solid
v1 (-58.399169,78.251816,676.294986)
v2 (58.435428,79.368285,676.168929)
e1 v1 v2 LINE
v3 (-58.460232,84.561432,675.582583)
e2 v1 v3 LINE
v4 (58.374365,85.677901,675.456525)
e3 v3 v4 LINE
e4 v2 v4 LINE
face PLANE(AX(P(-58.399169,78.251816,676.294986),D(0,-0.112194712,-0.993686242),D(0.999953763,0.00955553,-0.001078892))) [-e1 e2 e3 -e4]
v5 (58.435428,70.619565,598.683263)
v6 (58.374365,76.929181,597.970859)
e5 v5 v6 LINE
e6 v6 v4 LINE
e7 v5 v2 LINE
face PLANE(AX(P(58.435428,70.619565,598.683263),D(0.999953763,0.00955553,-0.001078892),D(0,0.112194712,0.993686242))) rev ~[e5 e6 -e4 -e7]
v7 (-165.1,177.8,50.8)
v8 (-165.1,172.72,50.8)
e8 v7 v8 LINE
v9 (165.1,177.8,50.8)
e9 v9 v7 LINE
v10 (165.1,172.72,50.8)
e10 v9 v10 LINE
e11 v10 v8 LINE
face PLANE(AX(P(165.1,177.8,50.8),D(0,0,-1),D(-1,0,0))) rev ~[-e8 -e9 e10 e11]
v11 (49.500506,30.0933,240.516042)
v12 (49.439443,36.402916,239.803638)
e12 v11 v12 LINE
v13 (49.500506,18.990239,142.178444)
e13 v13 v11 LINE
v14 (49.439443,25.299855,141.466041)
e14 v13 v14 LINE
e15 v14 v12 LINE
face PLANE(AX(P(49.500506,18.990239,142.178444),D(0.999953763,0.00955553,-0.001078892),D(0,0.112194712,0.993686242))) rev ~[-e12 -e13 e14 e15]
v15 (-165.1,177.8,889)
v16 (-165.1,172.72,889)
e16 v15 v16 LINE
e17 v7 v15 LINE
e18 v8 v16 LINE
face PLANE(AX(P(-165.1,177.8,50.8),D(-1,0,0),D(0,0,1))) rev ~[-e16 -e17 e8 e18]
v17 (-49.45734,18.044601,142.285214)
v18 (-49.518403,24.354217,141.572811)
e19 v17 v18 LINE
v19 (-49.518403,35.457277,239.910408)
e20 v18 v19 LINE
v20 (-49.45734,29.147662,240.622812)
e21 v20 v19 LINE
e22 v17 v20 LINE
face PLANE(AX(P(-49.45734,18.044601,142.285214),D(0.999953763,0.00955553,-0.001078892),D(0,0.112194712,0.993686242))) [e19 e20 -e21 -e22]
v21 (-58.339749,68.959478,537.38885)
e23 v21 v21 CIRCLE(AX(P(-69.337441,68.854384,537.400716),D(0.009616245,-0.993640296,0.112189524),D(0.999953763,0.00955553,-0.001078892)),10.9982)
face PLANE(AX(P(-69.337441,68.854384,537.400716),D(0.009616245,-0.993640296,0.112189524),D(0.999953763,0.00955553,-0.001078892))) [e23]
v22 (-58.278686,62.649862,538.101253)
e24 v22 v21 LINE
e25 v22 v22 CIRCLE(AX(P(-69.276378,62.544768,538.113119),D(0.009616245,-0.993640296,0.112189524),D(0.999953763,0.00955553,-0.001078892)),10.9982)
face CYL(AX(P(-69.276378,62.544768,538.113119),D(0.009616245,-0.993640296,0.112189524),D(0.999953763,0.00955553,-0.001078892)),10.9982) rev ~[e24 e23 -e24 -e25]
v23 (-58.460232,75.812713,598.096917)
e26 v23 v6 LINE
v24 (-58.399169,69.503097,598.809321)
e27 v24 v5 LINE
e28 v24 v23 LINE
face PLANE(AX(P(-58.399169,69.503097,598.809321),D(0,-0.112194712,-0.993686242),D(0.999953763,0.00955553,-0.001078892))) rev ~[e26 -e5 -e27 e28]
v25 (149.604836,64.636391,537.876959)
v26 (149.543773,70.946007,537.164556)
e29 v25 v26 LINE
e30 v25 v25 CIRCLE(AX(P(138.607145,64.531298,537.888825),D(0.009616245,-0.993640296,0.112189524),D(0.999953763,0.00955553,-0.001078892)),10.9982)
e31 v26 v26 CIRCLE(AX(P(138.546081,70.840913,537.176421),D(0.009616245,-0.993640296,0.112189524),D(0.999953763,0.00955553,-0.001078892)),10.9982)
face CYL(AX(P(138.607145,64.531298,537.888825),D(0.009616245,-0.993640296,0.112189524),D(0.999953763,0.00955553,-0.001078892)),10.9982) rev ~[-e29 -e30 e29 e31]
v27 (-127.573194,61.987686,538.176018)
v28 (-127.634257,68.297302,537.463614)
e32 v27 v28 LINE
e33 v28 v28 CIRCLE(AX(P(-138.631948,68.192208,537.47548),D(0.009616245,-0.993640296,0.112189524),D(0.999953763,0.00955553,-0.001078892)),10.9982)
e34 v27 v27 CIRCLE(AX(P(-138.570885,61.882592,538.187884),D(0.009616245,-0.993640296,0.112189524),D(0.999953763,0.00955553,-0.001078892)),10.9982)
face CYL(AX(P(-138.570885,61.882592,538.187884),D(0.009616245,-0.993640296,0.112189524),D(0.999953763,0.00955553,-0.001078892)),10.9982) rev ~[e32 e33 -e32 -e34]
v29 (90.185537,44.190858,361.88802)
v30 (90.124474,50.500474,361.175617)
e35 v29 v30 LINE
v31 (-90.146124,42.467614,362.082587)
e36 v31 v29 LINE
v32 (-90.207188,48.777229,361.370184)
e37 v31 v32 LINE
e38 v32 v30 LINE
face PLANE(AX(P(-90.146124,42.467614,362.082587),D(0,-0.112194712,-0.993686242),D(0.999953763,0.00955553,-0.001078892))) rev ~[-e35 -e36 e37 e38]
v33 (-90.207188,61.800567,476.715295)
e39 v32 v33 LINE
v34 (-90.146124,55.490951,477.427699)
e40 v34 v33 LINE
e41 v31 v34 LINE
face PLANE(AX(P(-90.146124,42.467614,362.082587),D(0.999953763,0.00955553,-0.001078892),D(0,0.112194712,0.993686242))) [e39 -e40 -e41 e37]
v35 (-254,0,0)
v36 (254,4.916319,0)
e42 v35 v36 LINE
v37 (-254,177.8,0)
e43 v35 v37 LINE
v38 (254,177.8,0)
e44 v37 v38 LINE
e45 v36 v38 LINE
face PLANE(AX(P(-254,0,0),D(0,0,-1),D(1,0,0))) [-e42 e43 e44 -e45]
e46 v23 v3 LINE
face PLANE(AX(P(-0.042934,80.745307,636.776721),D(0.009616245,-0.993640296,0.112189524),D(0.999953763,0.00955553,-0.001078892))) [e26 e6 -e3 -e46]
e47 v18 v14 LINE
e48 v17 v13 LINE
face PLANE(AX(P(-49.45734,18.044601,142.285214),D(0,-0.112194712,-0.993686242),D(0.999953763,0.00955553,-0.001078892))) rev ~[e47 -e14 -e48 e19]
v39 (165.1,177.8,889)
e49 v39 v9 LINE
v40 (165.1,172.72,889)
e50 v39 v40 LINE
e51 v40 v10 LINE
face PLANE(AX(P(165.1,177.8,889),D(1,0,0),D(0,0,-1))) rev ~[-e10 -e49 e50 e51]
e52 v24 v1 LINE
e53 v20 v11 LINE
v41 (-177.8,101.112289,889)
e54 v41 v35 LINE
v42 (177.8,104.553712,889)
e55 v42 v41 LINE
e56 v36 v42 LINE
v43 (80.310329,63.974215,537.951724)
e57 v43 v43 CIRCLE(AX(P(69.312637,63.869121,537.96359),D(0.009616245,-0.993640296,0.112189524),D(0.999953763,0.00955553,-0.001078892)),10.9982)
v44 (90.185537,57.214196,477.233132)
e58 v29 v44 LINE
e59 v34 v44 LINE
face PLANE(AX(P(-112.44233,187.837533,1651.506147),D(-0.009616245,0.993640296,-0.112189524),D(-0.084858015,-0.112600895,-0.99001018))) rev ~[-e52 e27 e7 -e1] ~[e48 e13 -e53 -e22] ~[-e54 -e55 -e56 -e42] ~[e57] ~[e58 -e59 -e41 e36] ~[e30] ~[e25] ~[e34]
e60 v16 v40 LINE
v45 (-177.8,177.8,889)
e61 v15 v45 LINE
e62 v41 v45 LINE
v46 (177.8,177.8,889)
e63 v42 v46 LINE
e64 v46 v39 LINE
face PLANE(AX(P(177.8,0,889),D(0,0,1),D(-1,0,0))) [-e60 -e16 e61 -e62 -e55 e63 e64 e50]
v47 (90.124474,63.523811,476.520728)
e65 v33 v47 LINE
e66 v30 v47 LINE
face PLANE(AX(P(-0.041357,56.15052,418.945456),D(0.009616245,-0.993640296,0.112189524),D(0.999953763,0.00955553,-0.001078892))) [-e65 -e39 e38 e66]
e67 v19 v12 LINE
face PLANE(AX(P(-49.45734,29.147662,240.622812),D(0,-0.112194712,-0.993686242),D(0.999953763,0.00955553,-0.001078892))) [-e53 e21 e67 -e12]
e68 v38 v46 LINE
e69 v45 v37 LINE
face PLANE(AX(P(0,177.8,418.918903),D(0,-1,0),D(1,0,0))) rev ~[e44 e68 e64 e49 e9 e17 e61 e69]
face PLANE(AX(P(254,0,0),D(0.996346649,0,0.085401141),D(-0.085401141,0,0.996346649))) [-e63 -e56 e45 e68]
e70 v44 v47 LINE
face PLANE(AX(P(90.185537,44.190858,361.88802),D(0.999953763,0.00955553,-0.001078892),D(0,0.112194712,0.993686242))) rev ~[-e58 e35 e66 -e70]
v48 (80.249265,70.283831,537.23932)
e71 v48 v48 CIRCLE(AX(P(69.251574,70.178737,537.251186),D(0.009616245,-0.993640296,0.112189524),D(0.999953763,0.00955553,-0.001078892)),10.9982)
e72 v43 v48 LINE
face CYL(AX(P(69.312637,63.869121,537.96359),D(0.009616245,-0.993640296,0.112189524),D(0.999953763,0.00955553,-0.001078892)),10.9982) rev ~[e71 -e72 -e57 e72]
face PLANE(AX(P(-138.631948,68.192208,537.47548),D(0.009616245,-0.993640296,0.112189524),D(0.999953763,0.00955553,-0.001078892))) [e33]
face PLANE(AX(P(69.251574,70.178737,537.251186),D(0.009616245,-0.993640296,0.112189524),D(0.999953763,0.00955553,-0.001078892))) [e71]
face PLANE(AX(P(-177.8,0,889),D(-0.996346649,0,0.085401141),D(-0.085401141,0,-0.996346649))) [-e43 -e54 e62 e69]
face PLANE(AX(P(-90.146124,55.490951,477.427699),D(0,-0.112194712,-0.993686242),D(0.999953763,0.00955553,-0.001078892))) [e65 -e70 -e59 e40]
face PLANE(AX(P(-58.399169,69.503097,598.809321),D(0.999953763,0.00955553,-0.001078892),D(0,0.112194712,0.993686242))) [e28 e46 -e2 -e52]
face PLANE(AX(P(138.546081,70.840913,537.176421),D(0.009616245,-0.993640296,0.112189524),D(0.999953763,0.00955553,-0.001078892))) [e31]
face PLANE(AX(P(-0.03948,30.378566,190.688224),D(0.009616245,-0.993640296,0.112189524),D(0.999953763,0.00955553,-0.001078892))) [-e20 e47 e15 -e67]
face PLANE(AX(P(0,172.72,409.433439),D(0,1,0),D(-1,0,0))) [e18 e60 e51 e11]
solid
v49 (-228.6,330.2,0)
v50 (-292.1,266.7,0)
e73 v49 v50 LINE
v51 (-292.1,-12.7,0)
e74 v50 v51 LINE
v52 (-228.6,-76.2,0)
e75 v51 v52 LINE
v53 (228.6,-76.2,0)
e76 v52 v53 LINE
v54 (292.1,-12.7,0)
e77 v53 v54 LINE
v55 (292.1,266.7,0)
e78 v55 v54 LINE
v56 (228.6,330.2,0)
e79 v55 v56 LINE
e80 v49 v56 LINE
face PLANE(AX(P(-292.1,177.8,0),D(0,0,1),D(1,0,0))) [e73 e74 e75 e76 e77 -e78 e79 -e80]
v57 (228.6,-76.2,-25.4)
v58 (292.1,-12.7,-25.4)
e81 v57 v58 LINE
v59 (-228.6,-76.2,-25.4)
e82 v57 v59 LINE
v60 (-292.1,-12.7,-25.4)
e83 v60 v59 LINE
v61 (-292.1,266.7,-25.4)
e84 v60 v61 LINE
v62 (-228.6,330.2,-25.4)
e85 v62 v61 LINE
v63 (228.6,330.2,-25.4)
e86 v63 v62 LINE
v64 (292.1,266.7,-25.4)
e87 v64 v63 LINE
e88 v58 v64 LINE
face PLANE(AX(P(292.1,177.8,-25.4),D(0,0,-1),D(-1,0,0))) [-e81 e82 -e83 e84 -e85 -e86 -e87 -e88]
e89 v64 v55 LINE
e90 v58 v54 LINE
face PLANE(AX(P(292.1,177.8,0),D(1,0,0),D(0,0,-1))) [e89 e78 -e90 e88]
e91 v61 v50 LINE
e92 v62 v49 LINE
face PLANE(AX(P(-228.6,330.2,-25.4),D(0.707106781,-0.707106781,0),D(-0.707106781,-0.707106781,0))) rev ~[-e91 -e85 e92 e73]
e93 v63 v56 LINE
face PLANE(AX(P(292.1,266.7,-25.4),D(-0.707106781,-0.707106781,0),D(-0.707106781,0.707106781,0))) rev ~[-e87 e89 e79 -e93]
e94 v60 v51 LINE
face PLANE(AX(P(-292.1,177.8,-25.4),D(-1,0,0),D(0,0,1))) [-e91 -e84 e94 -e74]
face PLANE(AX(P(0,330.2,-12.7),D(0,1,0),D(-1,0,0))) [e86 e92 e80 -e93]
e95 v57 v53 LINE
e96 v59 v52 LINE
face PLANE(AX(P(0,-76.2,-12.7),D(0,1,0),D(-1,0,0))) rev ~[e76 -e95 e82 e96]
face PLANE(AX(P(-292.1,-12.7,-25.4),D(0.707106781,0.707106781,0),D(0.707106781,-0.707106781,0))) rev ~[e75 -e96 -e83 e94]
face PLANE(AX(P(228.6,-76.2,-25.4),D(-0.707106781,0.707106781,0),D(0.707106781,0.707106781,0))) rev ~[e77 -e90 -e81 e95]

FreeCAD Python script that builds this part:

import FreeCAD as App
import Part
import Sketcher

V = App.Vector
Q = App.Units.Quantity

doc = App.newDocument("Part")
body = doc.addObject("PartDesign::Body", "Body")

# Sketch on XZ plane
sketch1 = doc.addObject("Sketcher::SketchObject", "Sketch")
body.addObject(sketch1)
sketch1.AttachmentSupport = (doc.XZ_Plane, [""])
sketch1.MapMode = "FlatFace"
sketch1.addGeometry(Part.LineSegment(V(-178, 889, 0), V(-254, 0, 0)), False)
sketch1.addGeometry(Part.LineSegment(V(-254, 0, 0), V(254, 0, 0)), False)
sketch1.addGeometry(Part.LineSegment(V(254, 0, 0), V(178, 889, 0)), False)
sketch1.addGeometry(Part.LineSegment(V(178, 889, 0), V(-178, 889, 0)), False)
sketch1.addConstraint(Sketcher.Constraint("Coincident", 0, 2, 1, 1))
sketch1.addConstraint(Sketcher.Constraint("Coincident", 1, 2, 2, 1))
sketch1.addConstraint(Sketcher.Constraint("Coincident", 2, 2, 3, 1))
sketch1.addConstraint(Sketcher.Constraint("Coincident", 3, 2, 0, 1))
sketch1.addConstraint(Sketcher.Constraint("Horizontal", 1))
sketch1.addConstraint(Sketcher.Constraint("Horizontal", 3))
sketch1.addConstraint(Sketcher.Constraint("Symmetric", 0, 2, 1, 2, -1, 1))
sketch1.addConstraint(Sketcher.Constraint("Equal", 0, 2))
sketch1.addConstraint(Sketcher.Constraint("DistanceX", 1, 1, 1, 2, Q("20 in")))
sketch1.addConstraint(Sketcher.Constraint("DistanceX", 3, 2, 3, 1, Q("14 in")))
sketch1.addConstraint(Sketcher.Constraint("DistanceY", -1, 1, 2, 2, Q("35 in")))
pad1 = doc.addObject("PartDesign::Pad", "Pad")
body.addObject(pad1)
pad1.Profile = sketch1
pad1.Length = Q("7 in")
pad1.Reversed = True

# Sketch on an angled plane
sketch2 = doc.addObject("Sketcher::SketchObject", "Sketch001")
body.addObject(sketch2)
sketch2.Placement = App.Placement(V(-252.147488, 0, 21.612642), App.Rotation(V(0, -1, 0), V(0.085401141, 0, 0.996346649), V(-0.996346649, 0, 0.085401141), "ZXY"))
sketch2.addGeometry(Part.LineSegment(V(0, -22, 0), V(0, 1636, 0)), False)
sketch2.addGeometry(Part.LineSegment(V(0, 1636, 0), V(-188, 1636, 0)), False)
sketch2.addGeometry(Part.LineSegment(V(-188, 1636, 0), V(0, -22, 0)), False)
sketch2.addConstraint(Sketcher.Constraint("Coincident", 0, 2, 1, 1))
sketch2.addConstraint(Sketcher.Constraint("Coincident", 1, 2, 2, 1))
sketch2.addConstraint(Sketcher.Constraint("Coincident", 2, 2, 0, 1))
sketch2.addConstraint(Sketcher.Constraint("Vertical", 0))
sketch2.addConstraint(Sketcher.Constraint("Horizontal", 1))
sketch2.addConstraint(Sketcher.Constraint("PointOnObject", 0, 2, -2))
sketch2.addConstraint(Sketcher.Constraint("DistanceX", 1, 2, 1, 1, 187.837533))
sketch2.addConstraint(Sketcher.Constraint("DistanceY", 0, 1, 0, 2, 1657.561802))
sketch2.addConstraint(Sketcher.Constraint("DistanceY", 2, 2, -1, 1, 21.69189))
pocket1 = doc.addObject("PartDesign::Pocket", "Pocket")
body.addObject(pocket1)
pocket1.Profile = sketch2
pocket1.Type = "ThroughAll"

# Sketch on XZ plane
sketch3 = doc.addObject("Sketcher::SketchObject", "Sketch002")
body.addObject(sketch3)
sketch3.AttachmentSupport = (doc.XZ_Plane, [""])
sketch3.MapMode = "FlatFace"
sketch3.AttachmentOffset = App.Placement(V(0, 0, -7 * 25.4), App.Rotation())
sketch3.addGeometry(Part.LineSegment(V(165, 889, 0), V(165, 51, 0)), False)
sketch3.addGeometry(Part.LineSegment(V(165, 51, 0), V(-165, 51, 0)), False)
sketch3.addGeometry(Part.LineSegment(V(-165, 51, 0), V(-165, 889, 0)), False)
sketch3.addGeometry(Part.LineSegment(V(-165, 889, 0), V(165, 889, 0)), False)
sketch3.addConstraint(Sketcher.Constraint("Coincident", 0, 2, 1, 1))
sketch3.addConstraint(Sketcher.Constraint("Coincident", 1, 2, 2, 1))
sketch3.addConstraint(Sketcher.Constraint("Coincident", 2, 2, 3, 1))
sketch3.addConstraint(Sketcher.Constraint("Coincident", 3, 2, 0, 1))
sketch3.addConstraint(Sketcher.Constraint("Vertical", 0))
sketch3.addConstraint(Sketcher.Constraint("Horizontal", 1))
sketch3.addConstraint(Sketcher.Constraint("Vertical", 2))
sketch3.addConstraint(Sketcher.Constraint("Horizontal", 3))
sketch3.addConstraint(Sketcher.Constraint("DistanceX", 1, 2, 1, 1, Q("13 in")))
sketch3.addConstraint(Sketcher.Constraint("DistanceY", 0, 2, 0, 1, Q("33 in")))
sketch3.addConstraint(Sketcher.Constraint("DistanceY", -1, 1, 0, 2, Q("2 in")))
sketch3.addConstraint(Sketcher.Constraint("DistanceX", -1, 1, 0, 2, Q("6.5 in")))
pocket2 = doc.addObject("PartDesign::Pocket", "Pocket001")
body.addObject(pocket2)
pocket2.Profile = sketch3
pocket2.Length = Q("0.2 in")
pocket2.Reversed = True

# Sketch on an angled plane
sketch4 = doc.addObject("Sketcher::SketchObject", "Sketch003")
body.addObject(sketch4)
sketch4.Placement = App.Placement(V(-0.023488, 2.426992, -0.274026), App.Rotation(V(0.999953763, 0.00955553, -0.001078892), V(0, 0.112194712, 0.993686241), V(0.009616245, -0.993640296, 0.112189524), "ZXY"))
sketch4.addGeometry(Part.LineSegment(V(-58, 681, 0), V(-58, 603, 0)), False)
sketch4.addGeometry(Part.LineSegment(V(-58, 603, 0), V(58, 603, 0)), False)
sketch4.addGeometry(Part.LineSegment(V(58, 603, 0), V(58, 681, 0)), False)
sketch4.addGeometry(Part.LineSegment(V(58, 681, 0), V(-58, 681, 0)), False)
sketch4.addGeometry(Part.LineSegment(V(-90, 481, 0), V(-90, 365, 0)), False)
sketch4.addGeometry(Part.LineSegment(V(-90, 365, 0), V(90, 365, 0)), False)
sketch4.addGeometry(Part.LineSegment(V(90, 365, 0), V(90, 481, 0)), False)
sketch4.addGeometry(Part.LineSegment(V(90, 481, 0), V(-90, 481, 0)), False)
sketch4.addGeometry(Part.LineSegment(V(-49, 242, 0), V(-49, 143, 0)), False)
sketch4.addGeometry(Part.LineSegment(V(-49, 143, 0), V(50, 143, 0)), False)
sketch4.addGeometry(Part.LineSegment(V(50, 143, 0), V(50, 242, 0)), False)
sketch4.addGeometry(Part.LineSegment(V(50, 242, 0), V(-49, 242, 0)), False)
sketch4.addGeometry(Part.Circle(V(69, 542, 0), V(0, 0, 1), 11), False)
sketch4.addGeometry(Part.Circle(V(139, 542, 0), V(0, 0, 1), 11), False)
sketch4.addGeometry(Part.Circle(V(-139, 542, 0), V(0, 0, 1), 11), False)
sketch4.addGeometry(Part.Circle(V(-69, 542, 0), V(0, 0, 1), 11), False)
sketch4.addConstraint(Sketcher.Constraint("Coincident", 0, 2, 1, 1))
sketch4.addConstraint(Sketcher.Constraint("Coincident", 1, 2, 2, 1))
sketch4.addConstraint(Sketcher.Constraint("Coincident", 2, 2, 3, 1))
sketch4.addConstraint(Sketcher.Constraint("Coincident", 3, 2, 0, 1))
sketch4.addConstraint(Sketcher.Constraint("Coincident", 4, 2, 5, 1))
sketch4.addConstraint(Sketcher.Constraint("Coincident", 5, 2, 6, 1))
sketch4.addConstraint(Sketcher.Constraint("Coincident", 6, 2, 7, 1))
sketch4.addConstraint(Sketcher.Constraint("Coincident", 7, 2, 4, 1))
sketch4.addConstraint(Sketcher.Constraint("Coincident", 8, 2, 9, 1))
sketch4.addConstraint(Sketcher.Constraint("Coincident", 9, 2, 10, 1))
sketch4.addConstraint(Sketcher.Constraint("Coincident", 10, 2, 11, 1))
sketch4.addConstraint(Sketcher.Constraint("Coincident", 11, 2, 8, 1))
sketch4.addConstraint(Sketcher.Constraint("Vertical", 0))
sketch4.addConstraint(Sketcher.Constraint("Horizontal", 1))
sketch4.addConstraint(Sketcher.Constraint("Vertical", 2))
sketch4.addConstraint(Sketcher.Constraint("Horizontal", 3))
sketch4.addConstraint(Sketcher.Constraint("Vertical", 4))
sketch4.addConstraint(Sketcher.Constraint("Horizontal", 5))
sketch4.addConstraint(Sketcher.Constraint("Vertical", 6))
sketch4.addConstraint(Sketcher.Constraint("Horizontal", 7))
sketch4.addConstraint(Sketcher.Constraint("Vertical", 8))
sketch4.addConstraint(Sketcher.Constraint("Horizontal", 9))
sketch4.addConstraint(Sketcher.Constraint("Vertical", 10))
sketch4.addConstraint(Sketcher.Constraint("Horizontal", 11))
sketch4.addConstraint(Sketcher.Constraint("Equal", 12, 13))
sketch4.addConstraint(Sketcher.Constraint("Equal", 13, 14))
sketch4.addConstraint(Sketcher.Constraint("Equal", 14, 15))
sketch4.addConstraint(Sketcher.Constraint("Horizontal", 12, 3, 13, 3))
sketch4.addConstraint(Sketcher.Constraint("Horizontal", 13, 3, 14, 3))
sketch4.addConstraint(Sketcher.Constraint("Horizontal", 14, 3, 15, 3))
sketch4.addConstraint(Sketcher.Constraint("Equal", 11, 8))
sketch4.addConstraint(Sketcher.Constraint("Diameter", 12, Q("0.866 in")))
sketch4.addConstraint(Sketcher.Constraint("DistanceX", 1, 1, 1, 2, Q("4.6 in")))
sketch4.addConstraint(Sketcher.Constraint("DistanceX", 5, 1, 5, 2, Q("7.1 in")))
sketch4.addConstraint(Sketcher.Constraint("DistanceY", 0, 2, 0, 1, Q("3.07 in")))
sketch4.addConstraint(Sketcher.Constraint("DistanceY", 4, 2, 4, 1, Q("4.57 in")))
sketch4.addConstraint(Sketcher.Constraint("DistanceX", 14, 3, 4, 2, 48.427))
sketch4.addConstraint(Sketcher.Constraint("DistanceX", 9, 1, 9, 2, 98.962422))
sketch4.addConstraint(Sketcher.Constraint("DistanceX", -1, 1, 12, 3, 69.339331))
sketch4.addConstraint(Sketcher.Constraint("DistanceX", 0, 2, -1, 1, 58.37838))
sketch4.addConstraint(Sketcher.Constraint("DistanceX", 8, 2, -1, 1, 49.436138))
sketch4.addConstraint(Sketcher.Constraint("DistanceY", -1, 1, 8, 2, 143.411368))
sketch4.addConstraint(Sketcher.Constraint("DistanceX", 12, 3, 13, 3, 69.297712))
sketch4.addConstraint(Sketcher.Constraint("DistanceX", 14, 3, 15, 3, 69.297712))
sketch4.addConstraint(Sketcher.Constraint("DistanceX", 15, 3, 0, 2, 10.877712))
sketch4.addConstraint(Sketcher.Constraint("DistanceY", 15, 3, 0, 2, 61.093668))
sketch4.addConstraint(Sketcher.Constraint("DistanceY", 4, 2, 15, 3, 177.171668))
sketch4.addConstraint(Sketcher.Constraint("DistanceY", 8, 2, 4, 2, 221.149759))
pocket3 = doc.addObject("PartDesign::Pocket", "Pocket002")
body.addObject(pocket3)
pocket3.Profile = sketch4
pocket3.Length = Q("0.25 in")
body2 = doc.addObject("PartDesign::Body", "Body001")

# Sketch on XZ plane
sketch5 = doc.addObject("Sketcher::SketchObject", "Sketch004")
body2.addObject(sketch5)
sketch5.AttachmentSupport = (doc.getObject("XZ_Plane001"), [""])
sketch5.MapMode = "FlatFace"
sketch5.AttachmentOffset = App.Placement(V(0, 0, -7 * 25.4), App.Rotation())
sketch5.addGeometry(Part.LineSegment(V(292, 0, 0), V(292, -25, 0)), False)
sketch5.addGeometry(Part.LineSegment(V(292, -25, 0), V(-292, -25, 0)), False)
sketch5.addGeometry(Part.LineSegment(V(-292, -25, 0), V(-292, 0, 0)), False)
sketch5.addGeometry(Part.LineSegment(V(-292, 0, 0), V(292, 0, 0)), False)
sketch5.addConstraint(Sketcher.Constraint("Coincident", 0, 2, 1, 1))
sketch5.addConstraint(Sketcher.Constraint("Coincident", 1, 2, 2, 1))
sketch5.addConstraint(Sketcher.Constraint("Coincident", 2, 2, 3, 1))
sketch5.addConstraint(Sketcher.Constraint("Coincident", 3, 2, 0, 1))
sketch5.addConstraint(Sketcher.Constraint("Vertical", 0))
sketch5.addConstraint(Sketcher.Constraint("Horizontal", 1))
sketch5.addConstraint(Sketcher.Constraint("Vertical", 2))
sketch5.addConstraint(Sketcher.Constraint("Horizontal", 3))
sketch5.addConstraint(Sketcher.Constraint("Symmetric", 2, 2, 3, 2, -1, 1))
sketch5.addConstraint(Sketcher.Constraint("DistanceX", 1, 2, 1, 1, Q("23 in")))
sketch5.addConstraint(Sketcher.Constraint("DistanceY", 0, 2, 0, 1, Q("1 in")))
pad2 = doc.addObject("PartDesign::Pad", "Pad001")
body2.addObject(pad2)
pad2.Profile = sketch5
pad2.Type = "TwoLengths"
pad2.Length = Q("6 in")
pad2.Length2 = Q("10 in")
pad2.Reversed = True

# Sketch on XY plane
sketch6 = doc.addObject("Sketcher::SketchObject", "Sketch005")
body2.addObject(sketch6)
sketch6.AttachmentSupport = (doc.getObject("XY_Plane001"), [""])
sketch6.MapMode = "FlatFace"
sketch6.AttachmentOffset = App.Placement(V(0, 0, -1 * 25.4), App.Rotation())
sketch6.addGeometry(Part.LineSegment(V(-292, -13, 0), V(-229, -76, 0)), False)
sketch6.addGeometry(Part.LineSegment(V(-229, -76, 0), V(-292, -76, 0)), False)
sketch6.addGeometry(Part.LineSegment(V(-292, -76, 0), V(-292, -13, 0)), False)
sketch6.addGeometry(Part.LineSegment(V(-229, 330, 0), V(-292, 267, 0)), False)
sketch6.addGeometry(Part.LineSegment(V(-292, 267, 0), V(-292, 330, 0)), False)
sketch6.addGeometry(Part.LineSegment(V(-292, 330, 0), V(-229, 330, 0)), False)
sketch6.addGeometry(Part.LineSegment(V(292, -76, 0), V(229, -76, 0)), False)
sketch6.addGeometry(Part.LineSegment(V(229, -76, 0), V(292, -13, 0)), False)
sketch6.addGeometry(Part.LineSegment(V(292, -13, 0), V(292, -76, 0)), False)
sketch6.addGeometry(Part.LineSegment(V(292, 330, 0), V(292, 267, 0)), False)
sketch6.addGeometry(Part.LineSegment(V(292, 267, 0), V(229, 330, 0)), False)
sketch6.addGeometry(Part.LineSegment(V(229, 330, 0), V(292, 330, 0)), False)
sketch6.addConstraint(Sketcher.Constraint("Coincident", 0, 2, 1, 1))
sketch6.addConstraint(Sketcher.Constraint("Coincident", 1, 2, 2, 1))
sketch6.addConstraint(Sketcher.Constraint("Coincident", 2, 2, 0, 1))
sketch6.addConstraint(Sketcher.Constraint("Coincident", 3, 2, 4, 1))
sketch6.addConstraint(Sketcher.Constraint("Coincident", 4, 2, 5, 1))
sketch6.addConstraint(Sketcher.Constraint("Coincident", 5, 2, 3, 1))
sketch6.addConstraint(Sketcher.Constraint("Coincident", 6, 2, 7, 1))
sketch6.addConstraint(Sketcher.Constraint("Coincident", 7, 2, 8, 1))
sketch6.addConstraint(Sketcher.Constraint("Coincident", 8, 2, 6, 1))
sketch6.addConstraint(Sketcher.Constraint("Coincident", 9, 2, 10, 1))
sketch6.addConstraint(Sketcher.Constraint("Coincident", 10, 2, 11, 1))
sketch6.addConstraint(Sketcher.Constraint("Coincident", 11, 2, 9, 1))
sketch6.addConstraint(Sketcher.Constraint("Horizontal", 1))
sketch6.addConstraint(Sketcher.Constraint("Vertical", 2))
sketch6.addConstraint(Sketcher.Constraint("Vertical", 4))
sketch6.addConstraint(Sketcher.Constraint("Horizontal", 5))
sketch6.addConstraint(Sketcher.Constraint("Horizontal", 6))
sketch6.addConstraint(Sketcher.Constraint("Vertical", 8))
sketch6.addConstraint(Sketcher.Constraint("Vertical", 9))
sketch6.addConstraint(Sketcher.Constraint("Horizontal", 11))
sketch6.addConstraint(Sketcher.Constraint("Symmetric", 0, 2, 6, 2, -2))
sketch6.addConstraint(Sketcher.Constraint("Symmetric", 2, 2, 7, 2, -2))
sketch6.addConstraint(Sketcher.Constraint("Symmetric", 3, 2, 9, 2, -2))
sketch6.addConstraint(Sketcher.Constraint("Symmetric", 5, 2, 10, 2, -2))
sketch6.addConstraint(Sketcher.Constraint("Perpendicular", 0, 3))
sketch6.addConstraint(Sketcher.Constraint("Parallel", 3, 7))
sketch6.addConstraint(Sketcher.Constraint("Vertical", 2, 2, 3, 2))
sketch6.addConstraint(Sketcher.Constraint("Vertical", 0, 2, 5, 2))
sketch6.addConstraint(Sketcher.Constraint("DistanceX", 1, 2, 1, 1, Q("2.5 in")))
sketch6.addConstraint(Sketcher.Constraint("DistanceX", 0, 2, -1, 1, Q("9 in")))
sketch6.addConstraint(Sketcher.Constraint("DistanceY", 0, 2, -1, 1, Q("3 in")))
sketch6.addConstraint(Sketcher.Constraint("DistanceY", -1, 1, 4, 2, Q("13 in")))
pocket4 = doc.addObject("PartDesign::Pocket", "Pocket003")
body2.addObject(pocket4)
pocket4.Profile = sketch6
pocket4.Length = Q("1 in")
pocket4.Reversed = True

doc.recompute()
